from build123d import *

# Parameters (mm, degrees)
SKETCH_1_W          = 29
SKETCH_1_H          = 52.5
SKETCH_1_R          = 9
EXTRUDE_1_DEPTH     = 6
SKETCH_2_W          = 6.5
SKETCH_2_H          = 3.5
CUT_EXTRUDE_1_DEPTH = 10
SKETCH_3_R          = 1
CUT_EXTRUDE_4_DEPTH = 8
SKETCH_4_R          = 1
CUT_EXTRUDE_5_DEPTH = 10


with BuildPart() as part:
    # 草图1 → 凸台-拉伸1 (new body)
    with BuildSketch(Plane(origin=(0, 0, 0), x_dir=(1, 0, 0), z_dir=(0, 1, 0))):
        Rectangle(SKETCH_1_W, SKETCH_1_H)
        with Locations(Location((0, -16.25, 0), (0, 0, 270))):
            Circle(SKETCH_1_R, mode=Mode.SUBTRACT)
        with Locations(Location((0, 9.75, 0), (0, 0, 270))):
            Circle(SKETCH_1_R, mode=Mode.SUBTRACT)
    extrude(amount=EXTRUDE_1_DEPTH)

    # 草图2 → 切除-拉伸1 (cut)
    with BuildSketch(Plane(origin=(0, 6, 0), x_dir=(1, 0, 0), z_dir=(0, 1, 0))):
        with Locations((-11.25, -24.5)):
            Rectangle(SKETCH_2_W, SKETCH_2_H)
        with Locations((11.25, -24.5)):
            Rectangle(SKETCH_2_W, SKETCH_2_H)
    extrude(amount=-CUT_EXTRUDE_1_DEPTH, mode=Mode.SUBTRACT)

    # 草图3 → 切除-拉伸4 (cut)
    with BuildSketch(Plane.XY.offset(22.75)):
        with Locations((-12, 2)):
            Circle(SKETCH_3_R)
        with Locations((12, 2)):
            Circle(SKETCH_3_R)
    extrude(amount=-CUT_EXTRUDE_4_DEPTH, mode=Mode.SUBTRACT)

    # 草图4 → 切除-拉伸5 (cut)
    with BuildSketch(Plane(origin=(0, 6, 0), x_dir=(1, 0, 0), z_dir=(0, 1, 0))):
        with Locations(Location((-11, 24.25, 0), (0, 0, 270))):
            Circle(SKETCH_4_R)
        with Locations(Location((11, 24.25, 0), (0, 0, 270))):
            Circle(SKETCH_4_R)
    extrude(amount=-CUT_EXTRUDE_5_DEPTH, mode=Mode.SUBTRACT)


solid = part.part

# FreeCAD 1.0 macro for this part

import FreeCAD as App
import Part
import Sketcher

V = App.Vector
Q = App.Units.Quantity

doc = App.newDocument("Part")
params = doc.addObject("Spreadsheet::Sheet", "Params")
for row, (alias, value) in enumerate([
    ("sketch1_diameter", "18 mm"),
    ("sketch1_width", "29 mm"),
    ("sketch1_height", "52.5 mm"),
    ("pad1_length", "6 mm"),
    ("sketch2_width", "6.5 mm"),
    ("sketch2_height", "3.5 mm"),
    ("pocket1_length", "10 mm"),
    ("sketch3_diameter", "2 mm"),
    ("pocket2_length", "8 mm"),
    ("sketch4_diameter", "2 mm"),
    ("pocket3_length", "10 mm"),
], start=1):
    params.set(f"A{row}", alias)
    params.set(f"B{row}", "=" + value)
    params.setAlias(f"B{row}", alias)

body = doc.addObject("PartDesign::Body", "Body")

# Sketch on XZ plane
sketch1 = body.newObject("Sketcher::SketchObject", "Sketch")
sketch1.AttachmentSupport = (doc.getObject("XZ_Plane"), [""])
sketch1.MapMode = "FlatFace"
sketch1.addGeometry([
    Part.LineSegment(V(-14.5, -26.25, 0), V(-14.5, 26.25, 0)),  # 0
    Part.LineSegment(V(-14.5, 26.25, 0), V(14.5, 26.25, 0)),  # 1
    Part.LineSegment(V(14.5, 26.25, 0), V(14.5, -26.25, 0)),  # 2
    Part.LineSegment(V(14.5, -26.25, 0), V(-14.5, -26.25, 0)),  # 3
    Part.Circle(V(0, 16.25, 0), V(0, 0, 1), 9),  # 4
    Part.Circle(V(0, -9.75, 0), V(0, 0, 1), 9),  # 5
], False)
sketch1.addConstraint([
    Sketcher.Constraint("Coincident", 0, 2, 1, 1),
    Sketcher.Constraint("Coincident", 1, 2, 2, 1),
    Sketcher.Constraint("Coincident", 2, 2, 3, 1),
    Sketcher.Constraint("Coincident", 3, 2, 0, 1),
    Sketcher.Constraint("Vertical", 0),
    Sketcher.Constraint("Horizontal", 1),
    Sketcher.Constraint("Vertical", 2),
    Sketcher.Constraint("Horizontal", 3),
    Sketcher.Constraint("Equal", 4, 5),
    Sketcher.Constraint("Symmetric", 0, 2, 2, 2, -1, 1),
    Sketcher.Constraint("PointOnObject", 4, 3, -2),
    Sketcher.Constraint("PointOnObject", 5, 3, -2),
    Sketcher.Constraint("Diameter", 4, Q("18 mm")),
    Sketcher.Constraint("DistanceX", 1, 1, 1, 2, Q("29 mm")),
    Sketcher.Constraint("DistanceY", 0, 1, 0, 2, Q("52.5 mm")),
    Sketcher.Constraint("DistanceY", 5, 3, 4, 3, Q("26 mm")),
    Sketcher.Constraint("DistanceY", 4, 3, 0, 2, Q("10 mm")),
])
sketch1.setExpression("Constraints[12]", "Params.sketch1_diameter")
sketch1.setExpression("Constraints[13]", "Params.sketch1_width")
sketch1.setExpression("Constraints[14]", "Params.sketch1_height")
pad1 = body.newObject("PartDesign::Pad", "Pad")
pad1.Profile = sketch1
pad1.setExpression("Length", "Params.pad1_length")
pad1.Reversed = True

# Sketch on XZ plane
sketch2 = body.newObject("Sketcher::SketchObject", "Sketch001")
sketch2.AttachmentSupport = (doc.getObject("XZ_Plane"), [""])
sketch2.MapMode = "FlatFace"
sketch2.AttachmentOffset = App.Placement(V(0, 0, -6), App.Rotation())
sketch2.addGeometry([
    Part.LineSegment(V(-14.5, 22.75, 0), V(-14.5, 26.25, 0)),  # 0
    Part.LineSegment(V(-14.5, 26.25, 0), V(-8, 26.25, 0)),  # 1
    Part.LineSegment(V(-8, 26.25, 0), V(-8, 22.75, 0)),  # 2
    Part.LineSegment(V(-8, 22.75, 0), V(-14.5, 22.75, 0)),  # 3
    Part.LineSegment(V(8, 22.75, 0), V(8, 26.25, 0)),  # 4
    Part.LineSegment(V(8, 26.25, 0), V(14.5, 26.25, 0)),  # 5
    Part.LineSegment(V(14.5, 26.25, 0), V(14.5, 22.75, 0)),  # 6
    Part.LineSegment(V(14.5, 22.75, 0), V(8, 22.75, 0)),  # 7
], False)
sketch2.addConstraint([
    Sketcher.Constraint("Coincident", 0, 2, 1, 1),
    Sketcher.Constraint("Coincident", 1, 2, 2, 1),
    Sketcher.Constraint("Coincident", 2, 2, 3, 1),
    Sketcher.Constraint("Coincident", 3, 2, 0, 1),
    Sketcher.Constraint("Coincident", 4, 2, 5, 1),
    Sketcher.Constraint("Coincident", 5, 2, 6, 1),
    Sketcher.Constraint("Coincident", 6, 2, 7, 1),
    Sketcher.Constraint("Coincident", 7, 2, 4, 1),
    Sketcher.Constraint("Vertical", 0),
    Sketcher.Constraint("Horizontal", 1),
    Sketcher.Constraint("Vertical", 2),
    Sketcher.Constraint("Horizontal", 3),
    Sketcher.Constraint("Vertical", 4),
    Sketcher.Constraint("Horizontal", 5),
    Sketcher.Constraint("Vertical", 6),
    Sketcher.Constraint("Horizontal", 7),
    Sketcher.Constraint("Symmetric", 1, 2, 4, 2, -2),
    Sketcher.Constraint("Symmetric", 3, 2, 6, 2, -2),
    Sketcher.Constraint("DistanceX", 1, 1, 1, 2, Q("6.5 mm")),
    Sketcher.Constraint("DistanceY", 0, 1, 0, 2, Q("3.5 mm")),
    Sketcher.Constraint("DistanceX", 1, 2, -1, 1, Q("8 mm")),
    Sketcher.Constraint("DistanceY", -1, 1, 0, 2, Q("26.25 mm")),
])
sketch2.setExpression("Constraints[18]", "Params.sketch2_width")
sketch2.setExpression("Constraints[19]", "Params.sketch2_height")
pocket1 = body.newObject("PartDesign::Pocket", "Pocket")
pocket1.Profile = sketch2
pocket1.setExpression("Length", "Params.pocket1_length")
pocket1.Reversed = True

# Sketch on XY plane
sketch3 = body.newObject("Sketcher::SketchObject", "Sketch002")
sketch3.AttachmentSupport = (doc.getObject("XY_Plane"), [""])
sketch3.MapMode = "FlatFace"
sketch3.AttachmentOffset = App.Placement(V(0, 0, 22.75), App.Rotation())
sketch3.addGeometry([
    Part.Circle(V(-12, 2, 0), V(0, 0, 1), 1),
    Part.Circle(V(12, 2, 0), V(0, 0, 1), 1),
], False)
sketch3.addConstraint([
    Sketcher.Constraint("Equal", 0, 1),
    Sketcher.Constraint("Symmetric", 0, 3, 1, 3, -2),
    Sketcher.Constraint("Diameter", 0, Q("2 mm")),
    Sketcher.Constraint("DistanceX", 0, 3, -1, 1, Q("12 mm")),
    Sketcher.Constraint("DistanceY", -1, 1, 0, 3, Q("2 mm")),
])
sketch3.setExpression("Constraints[2]", "Params.sketch3_diameter")
pocket2 = body.newObject("PartDesign::Pocket", "Pocket001")
pocket2.Profile = sketch3
pocket2.setExpression("Length", "Params.pocket2_length")

# Sketch on XZ plane
sketch4 = body.newObject("Sketcher::SketchObject", "Sketch003")
sketch4.AttachmentSupport = (doc.getObject("XZ_Plane"), [""])
sketch4.MapMode = "FlatFace"
sketch4.AttachmentOffset = App.Placement(V(0, 0, -6), App.Rotation())
sketch4.addGeometry([
    Part.Circle(V(-11, -24.25, 0), V(0, 0, 1), 1),
    Part.Circle(V(11, -24.25, 0), V(0, 0, 1), 1),
], False)
sketch4.addConstraint([
    Sketcher.Constraint("Equal", 0, 1),
    Sketcher.Constraint("Symmetric", 0, 3, 1, 3, -2),
    Sketcher.Constraint("Diameter", 0, Q("2 mm")),
    Sketcher.Constraint("DistanceX", 0, 3, -1, 1, Q("11 mm")),
    Sketcher.Constraint("DistanceY", 0, 3, -1, 1, Q("24.25 mm")),
])
sketch4.setExpression("Constraints[2]", "Params.sketch4_diameter")
pocket3 = body.newObject("PartDesign::Pocket", "Pocket002")
pocket3.Profile = sketch4
pocket3.setExpression("Length", "Params.pocket3_length")
pocket3.Reversed = True

doc.recompute()
